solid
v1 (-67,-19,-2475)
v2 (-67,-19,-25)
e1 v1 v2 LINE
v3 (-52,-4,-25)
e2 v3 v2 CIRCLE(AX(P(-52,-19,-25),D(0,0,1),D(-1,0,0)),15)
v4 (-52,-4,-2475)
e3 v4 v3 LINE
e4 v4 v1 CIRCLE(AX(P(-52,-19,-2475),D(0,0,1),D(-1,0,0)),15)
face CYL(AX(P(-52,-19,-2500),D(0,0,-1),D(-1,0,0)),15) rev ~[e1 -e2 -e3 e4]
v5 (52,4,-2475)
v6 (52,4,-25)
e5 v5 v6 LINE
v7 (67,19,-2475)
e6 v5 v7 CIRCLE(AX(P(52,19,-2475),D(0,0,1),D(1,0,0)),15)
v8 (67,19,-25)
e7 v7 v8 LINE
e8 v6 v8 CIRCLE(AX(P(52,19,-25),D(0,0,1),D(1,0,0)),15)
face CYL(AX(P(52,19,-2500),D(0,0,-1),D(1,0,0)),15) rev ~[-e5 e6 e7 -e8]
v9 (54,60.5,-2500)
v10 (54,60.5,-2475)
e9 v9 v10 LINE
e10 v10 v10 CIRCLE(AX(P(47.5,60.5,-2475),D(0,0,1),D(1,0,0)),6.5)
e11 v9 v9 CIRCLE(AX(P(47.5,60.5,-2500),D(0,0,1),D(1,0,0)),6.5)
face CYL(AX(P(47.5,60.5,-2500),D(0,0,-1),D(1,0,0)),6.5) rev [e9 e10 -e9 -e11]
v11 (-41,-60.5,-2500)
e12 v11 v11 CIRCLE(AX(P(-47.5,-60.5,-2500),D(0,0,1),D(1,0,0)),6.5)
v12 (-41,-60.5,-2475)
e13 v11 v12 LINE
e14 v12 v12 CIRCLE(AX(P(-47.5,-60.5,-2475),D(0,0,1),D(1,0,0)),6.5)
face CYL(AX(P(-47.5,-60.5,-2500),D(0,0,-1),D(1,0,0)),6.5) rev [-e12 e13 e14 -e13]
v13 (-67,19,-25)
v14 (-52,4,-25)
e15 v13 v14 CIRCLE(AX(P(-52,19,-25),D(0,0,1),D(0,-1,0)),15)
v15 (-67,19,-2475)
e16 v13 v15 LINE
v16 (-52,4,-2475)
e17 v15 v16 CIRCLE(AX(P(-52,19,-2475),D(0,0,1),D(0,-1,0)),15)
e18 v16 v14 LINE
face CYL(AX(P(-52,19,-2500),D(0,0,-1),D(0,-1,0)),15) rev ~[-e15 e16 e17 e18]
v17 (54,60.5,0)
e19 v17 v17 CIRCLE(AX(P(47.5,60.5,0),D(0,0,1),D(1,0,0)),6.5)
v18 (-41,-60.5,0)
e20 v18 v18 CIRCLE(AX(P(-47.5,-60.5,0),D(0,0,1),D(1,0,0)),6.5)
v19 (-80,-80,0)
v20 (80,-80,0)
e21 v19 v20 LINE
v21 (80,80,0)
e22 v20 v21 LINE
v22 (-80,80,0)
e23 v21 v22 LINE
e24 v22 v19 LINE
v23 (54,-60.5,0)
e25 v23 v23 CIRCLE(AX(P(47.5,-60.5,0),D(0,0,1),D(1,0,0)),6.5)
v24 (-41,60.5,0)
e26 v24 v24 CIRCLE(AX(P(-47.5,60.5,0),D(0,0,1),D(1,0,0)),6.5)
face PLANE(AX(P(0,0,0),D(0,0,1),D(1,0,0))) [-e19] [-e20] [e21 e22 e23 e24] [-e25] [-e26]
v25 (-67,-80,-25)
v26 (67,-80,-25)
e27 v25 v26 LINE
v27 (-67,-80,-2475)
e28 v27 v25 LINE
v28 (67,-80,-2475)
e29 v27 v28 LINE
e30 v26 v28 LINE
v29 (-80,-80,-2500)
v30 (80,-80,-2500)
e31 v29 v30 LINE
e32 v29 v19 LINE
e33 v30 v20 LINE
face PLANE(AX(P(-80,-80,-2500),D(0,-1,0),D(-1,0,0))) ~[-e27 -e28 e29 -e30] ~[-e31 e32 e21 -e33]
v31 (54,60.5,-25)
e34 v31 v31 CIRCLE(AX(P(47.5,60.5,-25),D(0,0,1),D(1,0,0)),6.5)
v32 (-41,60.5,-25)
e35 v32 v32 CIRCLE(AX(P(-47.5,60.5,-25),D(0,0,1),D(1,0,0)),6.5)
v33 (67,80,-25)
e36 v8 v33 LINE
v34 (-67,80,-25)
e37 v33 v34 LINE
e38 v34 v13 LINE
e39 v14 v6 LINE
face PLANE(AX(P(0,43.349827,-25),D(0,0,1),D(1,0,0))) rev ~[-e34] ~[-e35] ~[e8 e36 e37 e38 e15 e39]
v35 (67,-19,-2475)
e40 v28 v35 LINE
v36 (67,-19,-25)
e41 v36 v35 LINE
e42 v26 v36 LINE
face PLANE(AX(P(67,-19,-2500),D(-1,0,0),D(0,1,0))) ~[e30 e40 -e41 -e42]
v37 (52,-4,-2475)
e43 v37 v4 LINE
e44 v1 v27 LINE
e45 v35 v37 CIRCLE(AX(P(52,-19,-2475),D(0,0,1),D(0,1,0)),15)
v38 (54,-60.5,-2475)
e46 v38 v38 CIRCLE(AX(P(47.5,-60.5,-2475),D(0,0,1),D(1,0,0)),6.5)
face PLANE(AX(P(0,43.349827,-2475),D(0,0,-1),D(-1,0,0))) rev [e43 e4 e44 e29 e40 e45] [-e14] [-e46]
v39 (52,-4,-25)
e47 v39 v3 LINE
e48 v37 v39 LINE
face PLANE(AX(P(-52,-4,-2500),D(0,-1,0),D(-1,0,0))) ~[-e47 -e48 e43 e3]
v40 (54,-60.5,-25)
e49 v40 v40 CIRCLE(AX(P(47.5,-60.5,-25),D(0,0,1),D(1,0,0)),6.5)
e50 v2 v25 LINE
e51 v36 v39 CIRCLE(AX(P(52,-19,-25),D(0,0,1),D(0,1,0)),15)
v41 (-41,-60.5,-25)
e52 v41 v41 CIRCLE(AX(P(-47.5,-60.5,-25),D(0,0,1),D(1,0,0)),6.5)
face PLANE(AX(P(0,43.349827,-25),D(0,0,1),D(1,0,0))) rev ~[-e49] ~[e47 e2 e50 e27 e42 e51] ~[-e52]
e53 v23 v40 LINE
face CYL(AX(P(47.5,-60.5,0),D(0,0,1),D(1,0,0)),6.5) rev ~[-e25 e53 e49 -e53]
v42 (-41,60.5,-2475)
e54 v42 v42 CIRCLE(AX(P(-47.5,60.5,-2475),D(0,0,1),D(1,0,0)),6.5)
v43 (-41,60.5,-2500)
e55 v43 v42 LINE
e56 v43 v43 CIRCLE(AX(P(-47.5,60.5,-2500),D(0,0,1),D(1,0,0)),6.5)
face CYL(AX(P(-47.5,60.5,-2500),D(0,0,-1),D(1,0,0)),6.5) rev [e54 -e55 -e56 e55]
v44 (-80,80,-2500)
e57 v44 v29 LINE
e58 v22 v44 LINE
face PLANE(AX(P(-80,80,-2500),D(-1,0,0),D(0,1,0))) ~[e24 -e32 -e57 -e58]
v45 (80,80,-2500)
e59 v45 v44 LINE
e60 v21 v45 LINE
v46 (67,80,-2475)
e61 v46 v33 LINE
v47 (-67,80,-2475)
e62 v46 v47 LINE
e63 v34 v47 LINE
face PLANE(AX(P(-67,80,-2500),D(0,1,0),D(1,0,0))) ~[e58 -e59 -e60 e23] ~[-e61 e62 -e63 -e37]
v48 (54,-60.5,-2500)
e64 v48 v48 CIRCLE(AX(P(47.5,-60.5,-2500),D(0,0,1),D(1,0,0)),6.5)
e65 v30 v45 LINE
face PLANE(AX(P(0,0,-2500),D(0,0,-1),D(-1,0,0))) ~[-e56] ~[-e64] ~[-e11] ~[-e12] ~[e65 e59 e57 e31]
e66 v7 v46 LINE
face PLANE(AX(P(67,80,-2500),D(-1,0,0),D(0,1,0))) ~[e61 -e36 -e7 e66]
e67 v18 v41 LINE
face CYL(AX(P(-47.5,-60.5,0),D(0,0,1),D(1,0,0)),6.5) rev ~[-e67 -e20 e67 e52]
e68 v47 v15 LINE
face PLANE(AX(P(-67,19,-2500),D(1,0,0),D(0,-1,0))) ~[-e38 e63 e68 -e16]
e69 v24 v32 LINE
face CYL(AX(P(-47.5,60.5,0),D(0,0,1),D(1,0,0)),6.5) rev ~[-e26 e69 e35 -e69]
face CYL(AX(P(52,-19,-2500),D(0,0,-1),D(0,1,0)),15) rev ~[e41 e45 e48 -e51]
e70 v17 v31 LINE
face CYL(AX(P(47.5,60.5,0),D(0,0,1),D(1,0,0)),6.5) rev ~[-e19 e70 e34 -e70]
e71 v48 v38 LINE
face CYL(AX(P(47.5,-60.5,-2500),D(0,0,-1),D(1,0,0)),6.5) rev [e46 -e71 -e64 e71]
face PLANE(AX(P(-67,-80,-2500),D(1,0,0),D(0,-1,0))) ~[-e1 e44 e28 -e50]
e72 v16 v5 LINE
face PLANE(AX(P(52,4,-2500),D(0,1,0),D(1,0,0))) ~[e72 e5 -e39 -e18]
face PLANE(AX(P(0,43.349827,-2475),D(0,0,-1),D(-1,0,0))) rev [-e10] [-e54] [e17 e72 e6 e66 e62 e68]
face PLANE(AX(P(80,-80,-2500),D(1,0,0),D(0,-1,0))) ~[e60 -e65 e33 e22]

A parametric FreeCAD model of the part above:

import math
import FreeCAD as App
import Part
import Sketcher

V = App.Vector


def add_polygon(sketch, points):
    """Adds a closed chain of lines whose ends are joined by coincident constraints."""
    first, n = sketch.GeometryCount, len(points)
    for a, b in zip(points, points[1:] + points[:1]):
        sketch.addGeometry(Part.LineSegment(App.Vector(*a, 0), App.Vector(*b, 0)), False)
    for i in range(n):
        sketch.addConstraint(Sketcher.Constraint("Coincident", first + i, 2, first + (i + 1) % n, 1))

doc = App.newDocument("Part")
params = doc.addObject("Spreadsheet::Sheet", "Params")
for row, (alias, value) in enumerate([
    ("sketch1_radius", "15 mm"),
    ("sketch1_width", "13 mm"),
    ("sketch1_width2", "104 mm"),
    ("sketch1_height", "160 mm"),
    ("sketch1_height2", "61 mm"),
    ("pad1_length", "1250 mm"),
    ("sketch2_diameter", "13 mm"),
    ("sketch2_width", "160 mm"),
    ("pad2_length", "25 mm"),
], start=1):
    params.set(f"A{row}", alias)
    params.set(f"B{row}", "=" + value)
    params.setAlias(f"B{row}", alias)

body = doc.addObject("PartDesign::Body", "Body")

# Sketch on XY plane
sketch1 = body.newObject("Sketcher::SketchObject", "Sketch")
sketch1.AttachmentSupport = (doc.getObject("XY_Plane"), [""])
sketch1.MapMode = "FlatFace"
sketch1.addGeometry(Part.LineSegment(V(-80, 80, 0), V(-80, -80, 0)), False)
sketch1.addGeometry(Part.LineSegment(V(-80, -80, 0), V(-67, -80, 0)), False)
sketch1.addGeometry(Part.LineSegment(V(-67, -80, 0), V(-67, -19, 0)), False)
sketch1.addGeometry(Part.ArcOfCircle(Part.Circle(V(-52, -19, 0), V(0, 0, 1), 15), math.radians(90), math.radians(180)), False)
sketch1.addGeometry(Part.LineSegment(V(-52, -4, 0), V(52, -4, 0)), False)
sketch1.addGeometry(Part.ArcOfCircle(Part.Circle(V(52, -19, 0), V(0, 0, 1), 15), math.radians(0), math.radians(90)), False)
sketch1.addGeometry(Part.LineSegment(V(67, -19, 0), V(67, -80, 0)), False)
sketch1.addGeometry(Part.LineSegment(V(67, -80, 0), V(80, -80, 0)), False)
sketch1.addGeometry(Part.LineSegment(V(80, -80, 0), V(80, 80, 0)), False)
sketch1.addGeometry(Part.LineSegment(V(80, 80, 0), V(67, 80, 0)), False)
sketch1.addGeometry(Part.LineSegment(V(67, 80, 0), V(67, 19, 0)), False)
sketch1.addGeometry(Part.ArcOfCircle(Part.Circle(V(52, 19, 0), V(0, 0, 1), 15), math.radians(-90), math.radians(0)), False)
sketch1.addGeometry(Part.LineSegment(V(52, 4, 0), V(-52, 4, 0)), False)
sketch1.addGeometry(Part.ArcOfCircle(Part.Circle(V(-52, 19, 0), V(0, 0, 1), 15), math.radians(180), math.radians(270)), False)
sketch1.addGeometry(Part.LineSegment(V(-67, 19, 0), V(-67, 80, 0)), False)
sketch1.addGeometry(Part.LineSegment(V(-67, 80, 0), V(-80, 80, 0)), False)
sketch1.addConstraint(Sketcher.Constraint("Coincident", 0, 2, 1, 1))
sketch1.addConstraint(Sketcher.Constraint("Coincident", 1, 2, 2, 1))
sketch1.addConstraint(Sketcher.Constraint("Tangent", 2, 2, 3, 2))
sketch1.addConstraint(Sketcher.Constraint("Tangent", 3, 1, 4, 1))
sketch1.addConstraint(Sketcher.Constraint("Tangent", 4, 2, 5, 2))
sketch1.addConstraint(Sketcher.Constraint("Tangent", 5, 1, 6, 1))
sketch1.addConstraint(Sketcher.Constraint("Coincident", 6, 2, 7, 1))
sketch1.addConstraint(Sketcher.Constraint("Coincident", 7, 2, 8, 1))
sketch1.addConstraint(Sketcher.Constraint("Coincident", 8, 2, 9, 1))
sketch1.addConstraint(Sketcher.Constraint("Coincident", 9, 2, 10, 1))
sketch1.addConstraint(Sketcher.Constraint("Tangent", 10, 2, 11, 2))
sketch1.addConstraint(Sketcher.Constraint("Tangent", 11, 1, 12, 1))
sketch1.addConstraint(Sketcher.Constraint("Tangent", 12, 2, 13, 2))
sketch1.addConstraint(Sketcher.Constraint("Tangent", 13, 1, 14, 1))
sketch1.addConstraint(Sketcher.Constraint("Coincident", 14, 2, 15, 1))
sketch1.addConstraint(Sketcher.Constraint("Coincident", 15, 2, 0, 1))
sketch1.addConstraint(Sketcher.Constraint("Vertical", 0))
sketch1.addConstraint(Sketcher.Constraint("Horizontal", 1))
sketch1.addConstraint(Sketcher.Constraint("Vertical", 2))
sketch1.addConstraint(Sketcher.Constraint("Horizontal", 4))
sketch1.addConstraint(Sketcher.Constraint("Vertical", 6))
sketch1.addConstraint(Sketcher.Constraint("Horizontal", 7))
sketch1.addConstraint(Sketcher.Constraint("Vertical", 8))
sketch1.addConstraint(Sketcher.Constraint("Horizontal", 9))
sketch1.addConstraint(Sketcher.Constraint("Vertical", 10))
sketch1.addConstraint(Sketcher.Constraint("Horizontal", 12))
sketch1.addConstraint(Sketcher.Constraint("Vertical", 14))
sketch1.addConstraint(Sketcher.Constraint("Horizontal", 15))
sketch1.addConstraint(Sketcher.Constraint("Equal", 3, 5))
sketch1.addConstraint(Sketcher.Constraint("Equal", 5, 11))
sketch1.addConstraint(Sketcher.Constraint("Equal", 11, 13))
sketch1.addConstraint(Sketcher.Constraint("Symmetric", 3, 3, 11, 3, -1, 1))
sketch1.addConstraint(Sketcher.Constraint("Symmetric", 0, 2, 8, 2, -1, 1))
sketch1.addConstraint(Sketcher.Constraint("Symmetric", 6, 2, 14, 2, -1, 1))
sketch1.addConstraint(Sketcher.Constraint("Symmetric", 1, 2, 6, 2, -2))
sketch1.addConstraint(Sketcher.Constraint("Radius", 3, 15.0))
sketch1.addConstraint(Sketcher.Constraint("DistanceX", 1, 1, 1, 2, 13.0))
sketch1.addConstraint(Sketcher.Constraint("DistanceX", 4, 1, 4, 2, 104.0))
sketch1.addConstraint(Sketcher.Constraint("DistanceY", 0, 2, 0, 1, 160.0))
sketch1.addConstraint(Sketcher.Constraint("DistanceY", 2, 1, 2, 2, 61.0))
sketch1.setExpression("Constraints[35]", "Params.sketch1_radius")
sketch1.setExpression("Constraints[36]", "Params.sketch1_width")
sketch1.setExpression("Constraints[37]", "Params.sketch1_width2")
sketch1.setExpression("Constraints[38]", "Params.sketch1_height")
sketch1.setExpression("Constraints[39]", "Params.sketch1_height2")
pad1 = body.newObject("PartDesign::Pad", "Pad")
pad1.Profile = sketch1
pad1.setExpression("Length", "Params.pad1_length")
pad1.Reversed = True

# Sketch on XY plane
sketch2 = body.newObject("Sketcher::SketchObject", "Sketch001")
sketch2.AttachmentSupport = (doc.getObject("XY_Plane"), [""])
sketch2.MapMode = "FlatFace"
add_polygon(sketch2, [(-80, 80), (-80, -80), (80, -80), (80, 80)])  # lines 0-3
sketch2.addGeometry(Part.Circle(V(-48, -60, 0), V(0, 0, 1), 6), False)  # 4
sketch2.addGeometry(Part.Circle(V(48, -60, 0), V(0, 0, 1), 6), False)  # 5
sketch2.addGeometry(Part.Circle(V(-48, 60, 0), V(0, 0, 1), 6), False)  # 6
sketch2.addGeometry(Part.Circle(V(48, 60, 0), V(0, 0, 1), 6), False)  # 7
sketch2.addConstraint(Sketcher.Constraint("Vertical", 0))
sketch2.addConstraint(Sketcher.Constraint("Horizontal", 1))
sketch2.addConstraint(Sketcher.Constraint("Vertical", 2))
sketch2.addConstraint(Sketcher.Constraint("Horizontal", 3))
sketch2.addConstraint(Sketcher.Constraint("Equal", 4, 5))
sketch2.addConstraint(Sketcher.Constraint("Equal", 5, 6))
sketch2.addConstraint(Sketcher.Constraint("Equal", 6, 7))
sketch2.addConstraint(Sketcher.Constraint("Symmetric", 5, 3, 6, 3, -1, 1))
sketch2.addConstraint(Sketcher.Constraint("Symmetric", 4, 3, 7, 3, -1, 1))
sketch2.addConstraint(Sketcher.Constraint("Symmetric", 0, 2, 2, 2, -1, 1))
sketch2.addConstraint(Sketcher.Constraint("Symmetric", 4, 3, 5, 3, -2))
sketch2.addConstraint(Sketcher.Constraint("Equal", 3, 0))
sketch2.addConstraint(Sketcher.Constraint("Diameter", 4, 13.0))
sketch2.addConstraint(Sketcher.Constraint("DistanceX", 1, 1, 1, 2, 160.0))
sketch2.addConstraint(Sketcher.Constraint("DistanceX", 4, 3, 5, 3, 95.0))
sketch2.addConstraint(Sketcher.Constraint("DistanceY", 4, 3, 6, 3, 121.0))
sketch2.setExpression("Constraints[16]", "Params.sketch2_diameter")
sketch2.setExpression("Constraints[17]", "Params.sketch2_width")
pad2 = body.newObject("PartDesign::Pad", "Pad001")
pad2.Profile = sketch2
pad2.setExpression("Length", "Params.pad2_length")
pad2.Reversed = True
body2 = doc.addObject("PartDesign::Body", "Body001")
doc.recompute()

body2.BaseFeature = body
doc.recompute()

mirroring = doc.addObject("Part::Mirroring", "Mirroring")
mirroring.Source = body
mirroring.Base = V(0, 0, -1250)
mirroring.Normal = V(0, 0, -1)
body3 = doc.addObject("PartDesign::Body", "Body002")
body3.BaseFeature = mirroring
boolean = body2.newObject("PartDesign::Boolean", "Boolean")
boolean.Type = "Fuse"
boolean.addObjects([body3])
doc.recompute()
mirroring.Visibility = False

doc.recompute()
